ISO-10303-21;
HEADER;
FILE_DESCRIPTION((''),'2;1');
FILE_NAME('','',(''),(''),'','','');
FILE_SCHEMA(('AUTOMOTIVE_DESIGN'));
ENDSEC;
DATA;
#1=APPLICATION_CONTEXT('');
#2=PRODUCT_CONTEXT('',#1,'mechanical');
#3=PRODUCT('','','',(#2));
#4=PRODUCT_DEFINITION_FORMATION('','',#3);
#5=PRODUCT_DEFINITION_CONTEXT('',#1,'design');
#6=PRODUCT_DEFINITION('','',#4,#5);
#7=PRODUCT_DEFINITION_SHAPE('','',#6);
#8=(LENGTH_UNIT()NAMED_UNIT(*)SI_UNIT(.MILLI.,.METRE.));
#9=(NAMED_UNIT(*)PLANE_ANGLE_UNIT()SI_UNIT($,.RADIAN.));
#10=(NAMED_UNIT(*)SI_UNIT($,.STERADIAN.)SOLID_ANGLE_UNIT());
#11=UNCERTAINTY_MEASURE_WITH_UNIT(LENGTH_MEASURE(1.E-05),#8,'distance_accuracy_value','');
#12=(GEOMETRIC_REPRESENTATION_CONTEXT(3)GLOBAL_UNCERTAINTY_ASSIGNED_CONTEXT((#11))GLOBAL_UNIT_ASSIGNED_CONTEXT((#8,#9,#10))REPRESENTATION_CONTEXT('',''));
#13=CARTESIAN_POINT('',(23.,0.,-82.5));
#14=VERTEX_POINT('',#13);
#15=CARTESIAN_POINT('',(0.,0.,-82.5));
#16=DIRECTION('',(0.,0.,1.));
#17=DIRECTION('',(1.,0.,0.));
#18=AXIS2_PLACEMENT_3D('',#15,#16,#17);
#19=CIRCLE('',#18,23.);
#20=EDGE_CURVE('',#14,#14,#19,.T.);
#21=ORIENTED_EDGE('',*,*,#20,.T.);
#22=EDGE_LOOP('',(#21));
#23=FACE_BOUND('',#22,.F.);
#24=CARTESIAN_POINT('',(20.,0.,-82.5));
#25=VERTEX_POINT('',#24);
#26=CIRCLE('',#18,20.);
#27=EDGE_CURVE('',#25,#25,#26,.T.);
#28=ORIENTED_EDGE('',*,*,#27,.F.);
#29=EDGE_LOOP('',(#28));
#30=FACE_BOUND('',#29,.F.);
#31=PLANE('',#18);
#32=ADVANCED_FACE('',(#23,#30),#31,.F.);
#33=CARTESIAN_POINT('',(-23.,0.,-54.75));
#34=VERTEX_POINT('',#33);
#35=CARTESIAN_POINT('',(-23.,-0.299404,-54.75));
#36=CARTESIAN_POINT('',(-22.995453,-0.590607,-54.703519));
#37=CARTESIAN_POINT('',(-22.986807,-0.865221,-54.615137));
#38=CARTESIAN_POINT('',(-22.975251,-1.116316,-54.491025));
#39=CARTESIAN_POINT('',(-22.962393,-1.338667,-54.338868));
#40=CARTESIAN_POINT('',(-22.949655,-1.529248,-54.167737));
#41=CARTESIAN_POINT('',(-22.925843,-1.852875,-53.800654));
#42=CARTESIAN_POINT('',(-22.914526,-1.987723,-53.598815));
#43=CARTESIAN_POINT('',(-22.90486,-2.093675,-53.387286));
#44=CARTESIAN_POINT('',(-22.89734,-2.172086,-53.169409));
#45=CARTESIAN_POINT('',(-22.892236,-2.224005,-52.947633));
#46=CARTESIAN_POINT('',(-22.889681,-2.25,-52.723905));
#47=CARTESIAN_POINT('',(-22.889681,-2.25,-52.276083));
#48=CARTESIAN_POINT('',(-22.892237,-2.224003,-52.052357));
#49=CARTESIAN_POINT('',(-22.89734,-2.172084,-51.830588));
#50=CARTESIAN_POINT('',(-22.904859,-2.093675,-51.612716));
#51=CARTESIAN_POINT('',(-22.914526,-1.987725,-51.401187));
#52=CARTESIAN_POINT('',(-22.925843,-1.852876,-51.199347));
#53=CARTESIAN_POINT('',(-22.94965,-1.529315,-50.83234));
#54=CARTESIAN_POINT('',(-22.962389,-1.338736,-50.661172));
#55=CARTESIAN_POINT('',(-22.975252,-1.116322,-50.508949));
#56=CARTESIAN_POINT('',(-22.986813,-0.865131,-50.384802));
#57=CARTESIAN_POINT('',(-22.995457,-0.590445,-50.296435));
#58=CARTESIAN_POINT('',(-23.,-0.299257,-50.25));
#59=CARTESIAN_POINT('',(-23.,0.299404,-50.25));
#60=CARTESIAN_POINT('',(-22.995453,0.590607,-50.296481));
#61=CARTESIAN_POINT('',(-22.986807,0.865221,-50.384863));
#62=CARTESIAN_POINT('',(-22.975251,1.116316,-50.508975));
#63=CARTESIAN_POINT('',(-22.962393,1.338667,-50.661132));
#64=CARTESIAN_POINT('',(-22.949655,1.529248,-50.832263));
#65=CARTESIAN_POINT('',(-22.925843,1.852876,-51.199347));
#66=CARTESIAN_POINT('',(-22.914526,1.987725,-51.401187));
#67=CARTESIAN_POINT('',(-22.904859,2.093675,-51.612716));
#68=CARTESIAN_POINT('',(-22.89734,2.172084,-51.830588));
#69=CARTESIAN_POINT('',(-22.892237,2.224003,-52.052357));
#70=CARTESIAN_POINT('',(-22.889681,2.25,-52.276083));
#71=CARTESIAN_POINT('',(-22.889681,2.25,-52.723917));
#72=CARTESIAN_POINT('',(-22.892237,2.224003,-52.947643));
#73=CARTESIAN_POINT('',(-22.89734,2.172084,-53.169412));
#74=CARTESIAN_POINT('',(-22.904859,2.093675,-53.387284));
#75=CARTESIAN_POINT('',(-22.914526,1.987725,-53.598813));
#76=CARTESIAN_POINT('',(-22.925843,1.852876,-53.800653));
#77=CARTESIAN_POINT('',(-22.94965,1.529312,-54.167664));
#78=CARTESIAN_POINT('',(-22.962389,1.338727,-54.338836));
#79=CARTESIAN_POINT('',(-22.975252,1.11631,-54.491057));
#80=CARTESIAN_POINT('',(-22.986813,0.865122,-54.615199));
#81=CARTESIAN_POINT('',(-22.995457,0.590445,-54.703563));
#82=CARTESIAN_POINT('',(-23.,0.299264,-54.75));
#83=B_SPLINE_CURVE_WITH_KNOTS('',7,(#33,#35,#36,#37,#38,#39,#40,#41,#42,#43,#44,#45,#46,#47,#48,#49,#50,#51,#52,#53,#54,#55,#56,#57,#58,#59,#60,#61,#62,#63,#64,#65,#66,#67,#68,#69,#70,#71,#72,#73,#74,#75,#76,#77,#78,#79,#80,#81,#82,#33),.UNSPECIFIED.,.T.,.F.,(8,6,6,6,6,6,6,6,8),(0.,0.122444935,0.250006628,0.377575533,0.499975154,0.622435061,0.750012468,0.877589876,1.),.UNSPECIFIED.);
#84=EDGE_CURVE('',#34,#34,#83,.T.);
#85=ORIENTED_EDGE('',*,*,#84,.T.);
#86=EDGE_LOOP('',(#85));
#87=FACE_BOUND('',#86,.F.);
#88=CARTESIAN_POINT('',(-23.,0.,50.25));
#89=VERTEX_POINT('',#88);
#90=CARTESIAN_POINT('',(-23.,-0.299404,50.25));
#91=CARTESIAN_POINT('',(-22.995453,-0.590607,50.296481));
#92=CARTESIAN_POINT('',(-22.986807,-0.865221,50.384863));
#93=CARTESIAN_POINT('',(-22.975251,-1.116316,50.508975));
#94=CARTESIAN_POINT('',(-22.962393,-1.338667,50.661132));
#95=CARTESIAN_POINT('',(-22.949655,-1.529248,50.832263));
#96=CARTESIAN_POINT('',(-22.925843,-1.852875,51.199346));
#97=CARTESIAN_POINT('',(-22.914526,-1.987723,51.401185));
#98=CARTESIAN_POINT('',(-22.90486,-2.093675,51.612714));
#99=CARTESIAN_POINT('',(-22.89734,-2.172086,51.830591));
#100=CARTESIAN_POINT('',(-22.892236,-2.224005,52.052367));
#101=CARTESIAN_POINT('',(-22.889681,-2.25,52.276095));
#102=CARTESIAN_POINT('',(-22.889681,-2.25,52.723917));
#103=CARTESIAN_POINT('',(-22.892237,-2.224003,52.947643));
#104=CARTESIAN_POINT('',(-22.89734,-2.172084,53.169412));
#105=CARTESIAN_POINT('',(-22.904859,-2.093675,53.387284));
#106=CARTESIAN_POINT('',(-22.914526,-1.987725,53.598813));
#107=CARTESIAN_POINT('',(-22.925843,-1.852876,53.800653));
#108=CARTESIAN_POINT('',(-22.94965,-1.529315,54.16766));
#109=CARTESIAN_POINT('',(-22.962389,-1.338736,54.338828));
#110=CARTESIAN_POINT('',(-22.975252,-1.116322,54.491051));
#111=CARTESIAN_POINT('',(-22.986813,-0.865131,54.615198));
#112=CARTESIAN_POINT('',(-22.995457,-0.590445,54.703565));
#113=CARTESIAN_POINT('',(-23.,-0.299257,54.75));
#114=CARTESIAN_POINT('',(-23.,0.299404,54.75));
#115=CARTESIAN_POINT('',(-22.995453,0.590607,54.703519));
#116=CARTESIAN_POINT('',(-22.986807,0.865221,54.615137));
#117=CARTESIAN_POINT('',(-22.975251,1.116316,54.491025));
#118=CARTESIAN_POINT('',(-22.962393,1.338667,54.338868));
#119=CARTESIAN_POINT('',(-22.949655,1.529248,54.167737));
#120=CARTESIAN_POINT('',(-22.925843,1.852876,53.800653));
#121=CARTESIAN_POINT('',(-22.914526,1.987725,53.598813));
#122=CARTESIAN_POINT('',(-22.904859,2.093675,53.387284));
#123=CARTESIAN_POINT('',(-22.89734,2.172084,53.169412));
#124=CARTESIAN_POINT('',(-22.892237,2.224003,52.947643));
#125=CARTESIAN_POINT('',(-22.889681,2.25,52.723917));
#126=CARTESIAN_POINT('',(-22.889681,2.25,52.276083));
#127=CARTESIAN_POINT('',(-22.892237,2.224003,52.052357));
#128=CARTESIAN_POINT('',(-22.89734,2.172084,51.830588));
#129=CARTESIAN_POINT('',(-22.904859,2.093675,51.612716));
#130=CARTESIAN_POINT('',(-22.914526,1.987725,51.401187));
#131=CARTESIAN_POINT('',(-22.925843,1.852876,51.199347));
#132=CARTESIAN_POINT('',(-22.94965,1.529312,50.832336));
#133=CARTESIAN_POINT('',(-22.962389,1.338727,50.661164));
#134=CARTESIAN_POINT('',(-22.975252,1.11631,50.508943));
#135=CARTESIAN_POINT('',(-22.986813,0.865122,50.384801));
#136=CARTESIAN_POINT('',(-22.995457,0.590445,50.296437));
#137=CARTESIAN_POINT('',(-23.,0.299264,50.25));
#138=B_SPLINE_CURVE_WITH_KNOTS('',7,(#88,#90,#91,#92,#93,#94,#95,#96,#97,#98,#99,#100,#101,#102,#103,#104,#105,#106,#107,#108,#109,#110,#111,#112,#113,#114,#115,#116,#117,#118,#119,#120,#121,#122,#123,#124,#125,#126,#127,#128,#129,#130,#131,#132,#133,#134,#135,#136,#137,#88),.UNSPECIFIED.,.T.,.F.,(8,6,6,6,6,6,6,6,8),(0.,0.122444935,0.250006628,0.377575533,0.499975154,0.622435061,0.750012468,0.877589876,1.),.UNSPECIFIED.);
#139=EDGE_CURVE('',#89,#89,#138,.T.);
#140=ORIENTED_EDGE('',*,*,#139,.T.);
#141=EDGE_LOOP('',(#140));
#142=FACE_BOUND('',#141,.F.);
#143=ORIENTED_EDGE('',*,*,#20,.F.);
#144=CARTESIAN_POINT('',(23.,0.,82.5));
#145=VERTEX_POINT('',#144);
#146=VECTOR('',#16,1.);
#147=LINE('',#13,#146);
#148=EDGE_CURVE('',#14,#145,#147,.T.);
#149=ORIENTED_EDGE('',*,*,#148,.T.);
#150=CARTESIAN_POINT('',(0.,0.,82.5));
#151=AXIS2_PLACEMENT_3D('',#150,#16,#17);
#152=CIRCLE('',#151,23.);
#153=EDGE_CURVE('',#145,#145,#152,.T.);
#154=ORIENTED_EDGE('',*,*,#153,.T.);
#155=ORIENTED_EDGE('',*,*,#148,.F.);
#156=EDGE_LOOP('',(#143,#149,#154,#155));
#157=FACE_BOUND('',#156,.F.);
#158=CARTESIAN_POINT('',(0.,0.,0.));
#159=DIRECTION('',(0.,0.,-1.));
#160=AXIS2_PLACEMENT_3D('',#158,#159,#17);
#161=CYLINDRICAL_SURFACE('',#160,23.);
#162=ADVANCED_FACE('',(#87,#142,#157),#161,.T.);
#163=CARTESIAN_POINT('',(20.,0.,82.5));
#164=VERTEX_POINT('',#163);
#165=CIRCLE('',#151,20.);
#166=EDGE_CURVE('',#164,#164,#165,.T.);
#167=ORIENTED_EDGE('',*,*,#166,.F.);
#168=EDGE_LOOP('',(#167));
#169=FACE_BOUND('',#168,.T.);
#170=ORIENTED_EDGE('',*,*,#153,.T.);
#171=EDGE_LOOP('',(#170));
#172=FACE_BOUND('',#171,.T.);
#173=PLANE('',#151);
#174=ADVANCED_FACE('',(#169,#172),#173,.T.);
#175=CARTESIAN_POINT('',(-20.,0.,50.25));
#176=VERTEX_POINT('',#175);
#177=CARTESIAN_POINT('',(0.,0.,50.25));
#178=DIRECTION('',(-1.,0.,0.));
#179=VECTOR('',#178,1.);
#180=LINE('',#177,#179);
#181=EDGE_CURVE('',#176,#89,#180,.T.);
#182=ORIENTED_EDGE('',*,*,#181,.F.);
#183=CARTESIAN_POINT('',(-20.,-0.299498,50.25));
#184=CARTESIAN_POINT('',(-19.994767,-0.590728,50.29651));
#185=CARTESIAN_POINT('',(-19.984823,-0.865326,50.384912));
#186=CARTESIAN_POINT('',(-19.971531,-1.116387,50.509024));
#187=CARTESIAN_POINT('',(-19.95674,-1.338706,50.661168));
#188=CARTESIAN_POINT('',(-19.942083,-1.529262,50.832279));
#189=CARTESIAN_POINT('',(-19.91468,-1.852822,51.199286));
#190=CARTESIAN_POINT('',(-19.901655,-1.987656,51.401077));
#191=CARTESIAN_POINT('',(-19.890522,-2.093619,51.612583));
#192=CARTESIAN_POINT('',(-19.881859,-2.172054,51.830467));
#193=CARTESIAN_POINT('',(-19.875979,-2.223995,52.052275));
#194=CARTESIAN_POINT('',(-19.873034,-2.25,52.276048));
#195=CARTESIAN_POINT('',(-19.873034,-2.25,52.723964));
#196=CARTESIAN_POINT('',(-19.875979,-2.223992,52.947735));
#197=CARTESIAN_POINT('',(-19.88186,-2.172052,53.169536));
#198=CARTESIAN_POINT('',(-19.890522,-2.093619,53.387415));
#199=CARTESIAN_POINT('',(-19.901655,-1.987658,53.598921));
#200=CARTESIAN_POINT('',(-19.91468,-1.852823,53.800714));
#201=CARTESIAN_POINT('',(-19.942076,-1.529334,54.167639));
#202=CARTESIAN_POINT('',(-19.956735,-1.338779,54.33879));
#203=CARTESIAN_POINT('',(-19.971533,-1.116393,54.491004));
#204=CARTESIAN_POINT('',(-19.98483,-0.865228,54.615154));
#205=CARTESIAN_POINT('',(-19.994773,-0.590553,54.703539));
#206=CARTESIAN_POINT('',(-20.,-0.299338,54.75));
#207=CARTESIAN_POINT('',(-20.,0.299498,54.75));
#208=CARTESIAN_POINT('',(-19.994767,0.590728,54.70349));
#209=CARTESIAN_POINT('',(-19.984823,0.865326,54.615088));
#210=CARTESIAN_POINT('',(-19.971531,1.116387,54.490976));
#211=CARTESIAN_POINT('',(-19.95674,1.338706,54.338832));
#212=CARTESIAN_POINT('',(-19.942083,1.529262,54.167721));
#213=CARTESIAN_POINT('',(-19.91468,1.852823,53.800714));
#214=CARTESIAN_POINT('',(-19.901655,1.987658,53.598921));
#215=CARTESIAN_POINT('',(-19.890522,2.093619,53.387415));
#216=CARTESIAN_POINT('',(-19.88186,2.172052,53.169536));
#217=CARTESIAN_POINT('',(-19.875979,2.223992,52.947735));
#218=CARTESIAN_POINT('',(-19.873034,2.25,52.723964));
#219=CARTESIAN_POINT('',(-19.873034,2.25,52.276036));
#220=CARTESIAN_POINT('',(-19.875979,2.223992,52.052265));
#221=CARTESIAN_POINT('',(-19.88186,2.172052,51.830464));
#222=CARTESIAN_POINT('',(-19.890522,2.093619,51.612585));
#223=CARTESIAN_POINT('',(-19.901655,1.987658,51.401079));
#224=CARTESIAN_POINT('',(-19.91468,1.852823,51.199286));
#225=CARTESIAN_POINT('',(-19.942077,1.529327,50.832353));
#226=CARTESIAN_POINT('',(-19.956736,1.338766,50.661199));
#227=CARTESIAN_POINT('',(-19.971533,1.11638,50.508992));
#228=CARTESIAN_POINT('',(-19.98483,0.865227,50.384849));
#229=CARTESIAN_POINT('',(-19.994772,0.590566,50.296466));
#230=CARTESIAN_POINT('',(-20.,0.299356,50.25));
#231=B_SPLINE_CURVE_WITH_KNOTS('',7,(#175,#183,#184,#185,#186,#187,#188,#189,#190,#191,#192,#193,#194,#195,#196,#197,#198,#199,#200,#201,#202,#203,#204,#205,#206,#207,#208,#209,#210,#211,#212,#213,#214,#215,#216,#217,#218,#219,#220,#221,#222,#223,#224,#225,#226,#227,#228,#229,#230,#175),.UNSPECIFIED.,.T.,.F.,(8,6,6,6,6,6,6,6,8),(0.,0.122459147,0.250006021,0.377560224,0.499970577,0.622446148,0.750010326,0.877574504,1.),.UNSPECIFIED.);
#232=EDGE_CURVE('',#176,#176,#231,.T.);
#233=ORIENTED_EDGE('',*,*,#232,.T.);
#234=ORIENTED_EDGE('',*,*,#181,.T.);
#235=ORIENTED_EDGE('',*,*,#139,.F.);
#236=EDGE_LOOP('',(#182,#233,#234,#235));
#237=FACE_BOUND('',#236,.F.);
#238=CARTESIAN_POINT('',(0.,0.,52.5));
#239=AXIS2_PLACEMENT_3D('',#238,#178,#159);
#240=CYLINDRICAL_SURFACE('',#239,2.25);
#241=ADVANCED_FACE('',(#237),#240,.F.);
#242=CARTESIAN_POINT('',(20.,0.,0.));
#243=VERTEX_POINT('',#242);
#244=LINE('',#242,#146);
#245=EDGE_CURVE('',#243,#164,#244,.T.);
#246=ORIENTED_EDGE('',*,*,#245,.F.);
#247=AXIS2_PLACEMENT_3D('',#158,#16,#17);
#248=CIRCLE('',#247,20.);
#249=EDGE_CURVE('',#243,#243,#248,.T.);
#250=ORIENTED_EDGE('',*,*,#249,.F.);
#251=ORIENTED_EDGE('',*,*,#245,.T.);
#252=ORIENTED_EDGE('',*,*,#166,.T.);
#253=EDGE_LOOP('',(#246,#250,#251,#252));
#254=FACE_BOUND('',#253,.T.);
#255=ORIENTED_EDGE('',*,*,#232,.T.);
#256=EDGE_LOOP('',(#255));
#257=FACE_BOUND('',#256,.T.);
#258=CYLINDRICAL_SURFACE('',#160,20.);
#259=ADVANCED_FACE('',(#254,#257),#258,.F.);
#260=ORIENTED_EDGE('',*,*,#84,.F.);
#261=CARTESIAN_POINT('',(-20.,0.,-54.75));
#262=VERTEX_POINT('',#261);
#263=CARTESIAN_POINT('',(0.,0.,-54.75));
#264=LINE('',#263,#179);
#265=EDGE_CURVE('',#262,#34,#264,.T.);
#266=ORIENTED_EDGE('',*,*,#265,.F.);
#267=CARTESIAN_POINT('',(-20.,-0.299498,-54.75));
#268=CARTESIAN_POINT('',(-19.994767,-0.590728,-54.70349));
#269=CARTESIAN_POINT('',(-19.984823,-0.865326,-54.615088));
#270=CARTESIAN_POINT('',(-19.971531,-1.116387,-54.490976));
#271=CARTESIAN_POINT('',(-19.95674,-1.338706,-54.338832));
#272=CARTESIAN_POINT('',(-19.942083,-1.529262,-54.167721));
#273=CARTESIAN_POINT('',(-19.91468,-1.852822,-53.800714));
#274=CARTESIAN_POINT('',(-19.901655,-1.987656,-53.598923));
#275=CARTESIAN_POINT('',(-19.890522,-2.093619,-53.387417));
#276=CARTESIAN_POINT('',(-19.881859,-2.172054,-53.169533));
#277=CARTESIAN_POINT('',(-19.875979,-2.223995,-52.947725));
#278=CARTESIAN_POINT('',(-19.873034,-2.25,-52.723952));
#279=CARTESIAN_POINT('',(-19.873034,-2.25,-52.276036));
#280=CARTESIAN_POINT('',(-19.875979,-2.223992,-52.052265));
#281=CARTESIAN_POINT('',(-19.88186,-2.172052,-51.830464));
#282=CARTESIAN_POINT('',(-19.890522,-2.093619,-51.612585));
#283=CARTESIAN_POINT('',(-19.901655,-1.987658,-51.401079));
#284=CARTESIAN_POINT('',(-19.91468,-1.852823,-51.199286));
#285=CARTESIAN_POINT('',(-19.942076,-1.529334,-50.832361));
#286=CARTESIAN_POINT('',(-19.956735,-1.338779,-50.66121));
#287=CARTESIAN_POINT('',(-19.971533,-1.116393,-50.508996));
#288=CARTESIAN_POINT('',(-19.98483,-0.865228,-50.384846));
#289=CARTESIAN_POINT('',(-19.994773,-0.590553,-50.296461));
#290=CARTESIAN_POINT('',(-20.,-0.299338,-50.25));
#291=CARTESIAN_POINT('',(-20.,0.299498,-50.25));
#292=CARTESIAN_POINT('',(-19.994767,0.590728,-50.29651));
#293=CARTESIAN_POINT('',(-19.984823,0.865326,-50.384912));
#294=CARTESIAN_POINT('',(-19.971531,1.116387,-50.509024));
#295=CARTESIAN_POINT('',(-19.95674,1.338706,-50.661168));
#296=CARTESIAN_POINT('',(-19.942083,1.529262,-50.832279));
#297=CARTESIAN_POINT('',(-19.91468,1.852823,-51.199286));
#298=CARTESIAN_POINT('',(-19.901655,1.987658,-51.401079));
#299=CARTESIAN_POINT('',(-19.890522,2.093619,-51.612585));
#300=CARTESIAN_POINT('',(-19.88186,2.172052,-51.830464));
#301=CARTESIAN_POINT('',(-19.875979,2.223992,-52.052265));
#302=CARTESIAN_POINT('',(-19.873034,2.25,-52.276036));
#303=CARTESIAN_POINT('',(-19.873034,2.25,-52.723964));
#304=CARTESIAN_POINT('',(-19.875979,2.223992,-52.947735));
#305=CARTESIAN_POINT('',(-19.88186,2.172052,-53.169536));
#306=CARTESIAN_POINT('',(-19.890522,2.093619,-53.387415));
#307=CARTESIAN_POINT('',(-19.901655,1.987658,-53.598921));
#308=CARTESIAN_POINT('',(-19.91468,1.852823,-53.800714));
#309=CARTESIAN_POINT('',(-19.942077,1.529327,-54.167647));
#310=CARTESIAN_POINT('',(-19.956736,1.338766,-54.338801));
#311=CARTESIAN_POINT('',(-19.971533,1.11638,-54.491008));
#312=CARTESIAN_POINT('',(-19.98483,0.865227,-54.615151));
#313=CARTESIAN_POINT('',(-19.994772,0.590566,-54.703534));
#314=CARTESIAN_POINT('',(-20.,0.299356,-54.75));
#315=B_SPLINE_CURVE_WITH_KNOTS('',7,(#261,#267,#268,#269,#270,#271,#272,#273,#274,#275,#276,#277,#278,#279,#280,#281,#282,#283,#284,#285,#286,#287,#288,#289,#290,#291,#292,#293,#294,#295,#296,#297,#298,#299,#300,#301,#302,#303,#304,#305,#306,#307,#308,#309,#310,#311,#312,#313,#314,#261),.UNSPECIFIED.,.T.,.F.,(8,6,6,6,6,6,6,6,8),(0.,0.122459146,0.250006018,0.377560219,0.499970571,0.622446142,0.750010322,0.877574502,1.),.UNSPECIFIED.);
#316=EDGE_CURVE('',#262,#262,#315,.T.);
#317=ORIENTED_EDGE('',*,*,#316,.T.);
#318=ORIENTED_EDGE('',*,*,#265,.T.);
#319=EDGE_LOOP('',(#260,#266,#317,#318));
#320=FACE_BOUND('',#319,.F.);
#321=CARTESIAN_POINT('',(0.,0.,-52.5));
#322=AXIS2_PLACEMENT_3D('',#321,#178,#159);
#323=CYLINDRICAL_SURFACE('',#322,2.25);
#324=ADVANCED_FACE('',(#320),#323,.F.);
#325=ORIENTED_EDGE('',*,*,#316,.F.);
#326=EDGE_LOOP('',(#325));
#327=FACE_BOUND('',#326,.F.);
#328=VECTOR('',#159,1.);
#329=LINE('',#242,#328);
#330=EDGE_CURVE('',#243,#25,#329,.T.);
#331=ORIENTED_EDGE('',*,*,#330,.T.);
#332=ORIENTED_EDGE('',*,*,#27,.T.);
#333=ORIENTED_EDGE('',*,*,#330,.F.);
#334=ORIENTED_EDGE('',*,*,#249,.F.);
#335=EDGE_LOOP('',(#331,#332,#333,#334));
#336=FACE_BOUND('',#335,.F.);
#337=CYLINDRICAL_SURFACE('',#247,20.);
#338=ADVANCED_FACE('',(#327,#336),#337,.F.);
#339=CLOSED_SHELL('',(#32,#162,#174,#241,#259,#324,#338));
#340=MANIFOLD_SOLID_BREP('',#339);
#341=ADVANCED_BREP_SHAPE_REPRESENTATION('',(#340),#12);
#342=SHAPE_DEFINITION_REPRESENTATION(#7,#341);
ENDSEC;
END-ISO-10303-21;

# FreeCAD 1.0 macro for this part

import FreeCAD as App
import Part
import Sketcher

V = App.Vector

doc = App.newDocument("Part")
body = doc.addObject("PartDesign::Body", "Body")

# Sketch on XY plane
sketch1 = body.newObject("Sketcher::SketchObject", "Sketch")
sketch1.AttachmentSupport = (doc.getObject("XY_Plane"), [""])
sketch1.MapMode = "FlatFace"
sketch1.addGeometry([
    Part.Circle(V(0, 0, 0), V(0, 0, 1), 23),
    Part.Circle(V(0, 0, 0), V(0, 0, 1), 20),
], False)
sketch1.addConstraint([
    Sketcher.Constraint("Coincident", 0, 3, -1, 1),
    Sketcher.Constraint("Coincident", 1, 3, -1, 1),
    Sketcher.Constraint("Diameter", 0, 46.0),
    Sketcher.Constraint("Diameter", 1, 40.0),
])
pad1 = body.newObject("PartDesign::Pad", "Pad")
pad1.Profile = sketch1
pad1.Length = 165
pad1.Midplane = True

# Sketch on YZ plane
sketch2 = body.newObject("Sketcher::SketchObject", "Sketch001")
sketch2.AttachmentSupport = (doc.getObject("YZ_Plane"), [""])
sketch2.MapMode = "FlatFace"
sketch2.addGeometry([
    Part.Circle(V(0, 52.5, 0), V(0, 0, 1), 2.25),
    Part.Circle(V(0, -52.5, 0), V(0, 0, 1), 2.25),
], False)
sketch2.addConstraint([
    Sketcher.Constraint("Equal", 0, 1),
    Sketcher.Constraint("Symmetric", 0, 3, 1, 3, -1, 1),
    Sketcher.Constraint("PointOnObject", 0, 3, -2),
    Sketcher.Constraint("Diameter", 0, 4.5),
    Sketcher.Constraint("DistanceY", 1, 3, 0, 3, 105.0),
])
doc.recompute()
hole = body.newObject("PartDesign::Hole", "Hole")
hole.Profile = sketch2
hole.ThreadType = "None"
hole.Diameter = 4.5
hole.DepthType = "ThroughAll"

doc.recompute()
